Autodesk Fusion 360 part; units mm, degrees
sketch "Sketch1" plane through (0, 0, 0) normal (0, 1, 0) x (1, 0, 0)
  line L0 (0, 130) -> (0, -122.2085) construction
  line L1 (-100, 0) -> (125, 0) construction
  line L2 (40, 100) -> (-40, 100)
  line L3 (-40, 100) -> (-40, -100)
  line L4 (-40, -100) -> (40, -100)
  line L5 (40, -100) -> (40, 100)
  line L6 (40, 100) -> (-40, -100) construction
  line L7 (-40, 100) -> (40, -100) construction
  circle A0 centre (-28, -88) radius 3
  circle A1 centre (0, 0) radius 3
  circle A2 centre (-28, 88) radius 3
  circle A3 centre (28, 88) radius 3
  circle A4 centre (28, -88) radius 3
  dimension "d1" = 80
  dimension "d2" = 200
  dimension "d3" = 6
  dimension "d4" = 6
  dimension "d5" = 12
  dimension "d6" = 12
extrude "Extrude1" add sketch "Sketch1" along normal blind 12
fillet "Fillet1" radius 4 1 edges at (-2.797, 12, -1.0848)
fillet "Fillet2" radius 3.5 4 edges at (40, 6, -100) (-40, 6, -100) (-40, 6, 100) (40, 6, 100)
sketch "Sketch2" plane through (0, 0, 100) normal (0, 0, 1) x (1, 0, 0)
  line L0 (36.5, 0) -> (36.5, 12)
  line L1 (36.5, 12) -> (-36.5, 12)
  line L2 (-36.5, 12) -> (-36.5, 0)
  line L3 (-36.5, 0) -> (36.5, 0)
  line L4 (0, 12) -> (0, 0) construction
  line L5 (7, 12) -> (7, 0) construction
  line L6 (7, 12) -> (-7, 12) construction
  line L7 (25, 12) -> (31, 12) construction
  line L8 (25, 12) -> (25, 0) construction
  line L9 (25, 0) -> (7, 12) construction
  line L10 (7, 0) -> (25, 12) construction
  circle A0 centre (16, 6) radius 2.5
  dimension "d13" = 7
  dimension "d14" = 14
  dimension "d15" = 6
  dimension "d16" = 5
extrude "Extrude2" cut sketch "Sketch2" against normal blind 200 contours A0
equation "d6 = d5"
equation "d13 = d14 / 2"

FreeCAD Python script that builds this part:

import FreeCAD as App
import Part
import Sketcher


def edges_at(feature, points):
    """Names of the edges that pass closest to the given points."""
    edges = feature.Shape.Edges
    near = lambda p: min(range(len(edges)), key=lambda i: edges[i].distToShape(Part.Vertex(*p))[0])
    return sorted({f"Edge{near(p) + 1}" for p in points})


def add_polygon(sketch, points):
    """Adds a closed chain of lines whose ends are joined by coincident constraints."""
    first, n = sketch.GeometryCount, len(points)
    for a, b in zip(points, points[1:] + points[:1]):
        sketch.addGeometry(Part.LineSegment(App.Vector(*a, 0), App.Vector(*b, 0)), False)
    for i in range(n):
        sketch.addConstraint(Sketcher.Constraint("Coincident", first + i, 2, first + (i + 1) % n, 1))

doc = App.newDocument("Part")
body = doc.addObject("PartDesign::Body", "Body")

sketch1 = doc.addObject("Sketcher::SketchObject", "Sketch")
body.addObject(sketch1)
sketch1.AttachmentSupport = (doc.XZ_Plane, [""])
sketch1.MapMode = "FlatFace"
add_polygon(sketch1, [(40, 100), (40, -100), (-40, -100), (-40, 100)])
sketch1.addGeometry(Part.Circle(App.Vector(-28, 88, 0), App.Vector(0, 0, 1), 3), False)
sketch1.addGeometry(Part.Circle(App.Vector(28, 88, 0), App.Vector(0, 0, 1), 3), False)
sketch1.addGeometry(Part.Circle(App.Vector(-28, -88, 0), App.Vector(0, 0, 1), 3), False)
sketch1.addGeometry(Part.Circle(App.Vector(0, 0, 0), App.Vector(0, 0, 1), 3), False)
sketch1.addGeometry(Part.Circle(App.Vector(28, -88, 0), App.Vector(0, 0, 1), 3), False)
sketch1.addConstraint([
    Sketcher.Constraint("Vertical", 0),
    Sketcher.Constraint("Horizontal", 1),
    Sketcher.Constraint("Vertical", 2),
    Sketcher.Constraint("Horizontal", 3),
    Sketcher.Constraint("Coincident", 7, 3, -1, 1),
    Sketcher.Constraint("Equal", 4, 5),
    Sketcher.Constraint("Equal", 5, 6),
    Sketcher.Constraint("Equal", 6, 7),
    Sketcher.Constraint("Equal", 7, 8),
    Sketcher.Constraint("Symmetric", 5, 3, 6, 3, -1, 1),
    Sketcher.Constraint("Symmetric", 4, 3, 8, 3, -1, 1),
    Sketcher.Constraint("Symmetric", 0, 2, 2, 2, -1, 1),
    Sketcher.Constraint("Symmetric", 4, 3, 5, 3, -2),
    Sketcher.Constraint("Diameter", 4, 6.0),
    Sketcher.Constraint("DistanceX", 1, 2, 1, 1, 80.0),
    Sketcher.Constraint("DistanceY", 0, 2, 0, 1, 200.0),
    Sketcher.Constraint("DistanceX", 8, 3, 0, 2, 12.0),
    Sketcher.Constraint("DistanceY", 0, 2, 8, 3, 12.0),
])
pad1 = doc.addObject("PartDesign::Pad", "Pad")
body.addObject(pad1)
pad1.Profile = sketch1
pad1.Length = 12
pad1.Reversed = True
doc.recompute()

fillet = doc.addObject("PartDesign::Fillet", "Fillet")
body.addObject(fillet)
fillet.Base = (pad1, edges_at(pad1, [(-2.797, 12, -1.085)]))
fillet.Radius = 4
doc.recompute()

fillet2 = doc.addObject("PartDesign::Fillet", "Fillet001")
body.addObject(fillet2)
fillet2.Base = (fillet, edges_at(fillet, [
    (40, 6, -100),
    (-40, 6, -100),
    (-40, 6, 100),
    (40, 6, 100),
]))
fillet2.Radius = 3.5

sketch2 = doc.addObject("Sketcher::SketchObject", "Sketch001")
body.addObject(sketch2)
sketch2.AttachmentSupport = (doc.XY_Plane, [""])
sketch2.MapMode = "FlatFace"
sketch2.AttachmentOffset = App.Placement(App.Vector(0, 0, 100), App.Rotation())
sketch2.addGeometry(Part.Circle(App.Vector(16, 6, 0), App.Vector(0, 0, 1), 2.5), False)
sketch2.addConstraint([
    Sketcher.Constraint("Diameter", 0, 5.0),
    Sketcher.Constraint("DistanceY", -1, 1, 0, 3, 6.0),
    Sketcher.Constraint("DistanceX", -1, 1, 0, 3, 16.0),
])
pocket1 = doc.addObject("PartDesign::Pocket", "Pocket")
body.addObject(pocket1)
pocket1.Profile = sketch2
pocket1.Length = 200

doc.recompute()
